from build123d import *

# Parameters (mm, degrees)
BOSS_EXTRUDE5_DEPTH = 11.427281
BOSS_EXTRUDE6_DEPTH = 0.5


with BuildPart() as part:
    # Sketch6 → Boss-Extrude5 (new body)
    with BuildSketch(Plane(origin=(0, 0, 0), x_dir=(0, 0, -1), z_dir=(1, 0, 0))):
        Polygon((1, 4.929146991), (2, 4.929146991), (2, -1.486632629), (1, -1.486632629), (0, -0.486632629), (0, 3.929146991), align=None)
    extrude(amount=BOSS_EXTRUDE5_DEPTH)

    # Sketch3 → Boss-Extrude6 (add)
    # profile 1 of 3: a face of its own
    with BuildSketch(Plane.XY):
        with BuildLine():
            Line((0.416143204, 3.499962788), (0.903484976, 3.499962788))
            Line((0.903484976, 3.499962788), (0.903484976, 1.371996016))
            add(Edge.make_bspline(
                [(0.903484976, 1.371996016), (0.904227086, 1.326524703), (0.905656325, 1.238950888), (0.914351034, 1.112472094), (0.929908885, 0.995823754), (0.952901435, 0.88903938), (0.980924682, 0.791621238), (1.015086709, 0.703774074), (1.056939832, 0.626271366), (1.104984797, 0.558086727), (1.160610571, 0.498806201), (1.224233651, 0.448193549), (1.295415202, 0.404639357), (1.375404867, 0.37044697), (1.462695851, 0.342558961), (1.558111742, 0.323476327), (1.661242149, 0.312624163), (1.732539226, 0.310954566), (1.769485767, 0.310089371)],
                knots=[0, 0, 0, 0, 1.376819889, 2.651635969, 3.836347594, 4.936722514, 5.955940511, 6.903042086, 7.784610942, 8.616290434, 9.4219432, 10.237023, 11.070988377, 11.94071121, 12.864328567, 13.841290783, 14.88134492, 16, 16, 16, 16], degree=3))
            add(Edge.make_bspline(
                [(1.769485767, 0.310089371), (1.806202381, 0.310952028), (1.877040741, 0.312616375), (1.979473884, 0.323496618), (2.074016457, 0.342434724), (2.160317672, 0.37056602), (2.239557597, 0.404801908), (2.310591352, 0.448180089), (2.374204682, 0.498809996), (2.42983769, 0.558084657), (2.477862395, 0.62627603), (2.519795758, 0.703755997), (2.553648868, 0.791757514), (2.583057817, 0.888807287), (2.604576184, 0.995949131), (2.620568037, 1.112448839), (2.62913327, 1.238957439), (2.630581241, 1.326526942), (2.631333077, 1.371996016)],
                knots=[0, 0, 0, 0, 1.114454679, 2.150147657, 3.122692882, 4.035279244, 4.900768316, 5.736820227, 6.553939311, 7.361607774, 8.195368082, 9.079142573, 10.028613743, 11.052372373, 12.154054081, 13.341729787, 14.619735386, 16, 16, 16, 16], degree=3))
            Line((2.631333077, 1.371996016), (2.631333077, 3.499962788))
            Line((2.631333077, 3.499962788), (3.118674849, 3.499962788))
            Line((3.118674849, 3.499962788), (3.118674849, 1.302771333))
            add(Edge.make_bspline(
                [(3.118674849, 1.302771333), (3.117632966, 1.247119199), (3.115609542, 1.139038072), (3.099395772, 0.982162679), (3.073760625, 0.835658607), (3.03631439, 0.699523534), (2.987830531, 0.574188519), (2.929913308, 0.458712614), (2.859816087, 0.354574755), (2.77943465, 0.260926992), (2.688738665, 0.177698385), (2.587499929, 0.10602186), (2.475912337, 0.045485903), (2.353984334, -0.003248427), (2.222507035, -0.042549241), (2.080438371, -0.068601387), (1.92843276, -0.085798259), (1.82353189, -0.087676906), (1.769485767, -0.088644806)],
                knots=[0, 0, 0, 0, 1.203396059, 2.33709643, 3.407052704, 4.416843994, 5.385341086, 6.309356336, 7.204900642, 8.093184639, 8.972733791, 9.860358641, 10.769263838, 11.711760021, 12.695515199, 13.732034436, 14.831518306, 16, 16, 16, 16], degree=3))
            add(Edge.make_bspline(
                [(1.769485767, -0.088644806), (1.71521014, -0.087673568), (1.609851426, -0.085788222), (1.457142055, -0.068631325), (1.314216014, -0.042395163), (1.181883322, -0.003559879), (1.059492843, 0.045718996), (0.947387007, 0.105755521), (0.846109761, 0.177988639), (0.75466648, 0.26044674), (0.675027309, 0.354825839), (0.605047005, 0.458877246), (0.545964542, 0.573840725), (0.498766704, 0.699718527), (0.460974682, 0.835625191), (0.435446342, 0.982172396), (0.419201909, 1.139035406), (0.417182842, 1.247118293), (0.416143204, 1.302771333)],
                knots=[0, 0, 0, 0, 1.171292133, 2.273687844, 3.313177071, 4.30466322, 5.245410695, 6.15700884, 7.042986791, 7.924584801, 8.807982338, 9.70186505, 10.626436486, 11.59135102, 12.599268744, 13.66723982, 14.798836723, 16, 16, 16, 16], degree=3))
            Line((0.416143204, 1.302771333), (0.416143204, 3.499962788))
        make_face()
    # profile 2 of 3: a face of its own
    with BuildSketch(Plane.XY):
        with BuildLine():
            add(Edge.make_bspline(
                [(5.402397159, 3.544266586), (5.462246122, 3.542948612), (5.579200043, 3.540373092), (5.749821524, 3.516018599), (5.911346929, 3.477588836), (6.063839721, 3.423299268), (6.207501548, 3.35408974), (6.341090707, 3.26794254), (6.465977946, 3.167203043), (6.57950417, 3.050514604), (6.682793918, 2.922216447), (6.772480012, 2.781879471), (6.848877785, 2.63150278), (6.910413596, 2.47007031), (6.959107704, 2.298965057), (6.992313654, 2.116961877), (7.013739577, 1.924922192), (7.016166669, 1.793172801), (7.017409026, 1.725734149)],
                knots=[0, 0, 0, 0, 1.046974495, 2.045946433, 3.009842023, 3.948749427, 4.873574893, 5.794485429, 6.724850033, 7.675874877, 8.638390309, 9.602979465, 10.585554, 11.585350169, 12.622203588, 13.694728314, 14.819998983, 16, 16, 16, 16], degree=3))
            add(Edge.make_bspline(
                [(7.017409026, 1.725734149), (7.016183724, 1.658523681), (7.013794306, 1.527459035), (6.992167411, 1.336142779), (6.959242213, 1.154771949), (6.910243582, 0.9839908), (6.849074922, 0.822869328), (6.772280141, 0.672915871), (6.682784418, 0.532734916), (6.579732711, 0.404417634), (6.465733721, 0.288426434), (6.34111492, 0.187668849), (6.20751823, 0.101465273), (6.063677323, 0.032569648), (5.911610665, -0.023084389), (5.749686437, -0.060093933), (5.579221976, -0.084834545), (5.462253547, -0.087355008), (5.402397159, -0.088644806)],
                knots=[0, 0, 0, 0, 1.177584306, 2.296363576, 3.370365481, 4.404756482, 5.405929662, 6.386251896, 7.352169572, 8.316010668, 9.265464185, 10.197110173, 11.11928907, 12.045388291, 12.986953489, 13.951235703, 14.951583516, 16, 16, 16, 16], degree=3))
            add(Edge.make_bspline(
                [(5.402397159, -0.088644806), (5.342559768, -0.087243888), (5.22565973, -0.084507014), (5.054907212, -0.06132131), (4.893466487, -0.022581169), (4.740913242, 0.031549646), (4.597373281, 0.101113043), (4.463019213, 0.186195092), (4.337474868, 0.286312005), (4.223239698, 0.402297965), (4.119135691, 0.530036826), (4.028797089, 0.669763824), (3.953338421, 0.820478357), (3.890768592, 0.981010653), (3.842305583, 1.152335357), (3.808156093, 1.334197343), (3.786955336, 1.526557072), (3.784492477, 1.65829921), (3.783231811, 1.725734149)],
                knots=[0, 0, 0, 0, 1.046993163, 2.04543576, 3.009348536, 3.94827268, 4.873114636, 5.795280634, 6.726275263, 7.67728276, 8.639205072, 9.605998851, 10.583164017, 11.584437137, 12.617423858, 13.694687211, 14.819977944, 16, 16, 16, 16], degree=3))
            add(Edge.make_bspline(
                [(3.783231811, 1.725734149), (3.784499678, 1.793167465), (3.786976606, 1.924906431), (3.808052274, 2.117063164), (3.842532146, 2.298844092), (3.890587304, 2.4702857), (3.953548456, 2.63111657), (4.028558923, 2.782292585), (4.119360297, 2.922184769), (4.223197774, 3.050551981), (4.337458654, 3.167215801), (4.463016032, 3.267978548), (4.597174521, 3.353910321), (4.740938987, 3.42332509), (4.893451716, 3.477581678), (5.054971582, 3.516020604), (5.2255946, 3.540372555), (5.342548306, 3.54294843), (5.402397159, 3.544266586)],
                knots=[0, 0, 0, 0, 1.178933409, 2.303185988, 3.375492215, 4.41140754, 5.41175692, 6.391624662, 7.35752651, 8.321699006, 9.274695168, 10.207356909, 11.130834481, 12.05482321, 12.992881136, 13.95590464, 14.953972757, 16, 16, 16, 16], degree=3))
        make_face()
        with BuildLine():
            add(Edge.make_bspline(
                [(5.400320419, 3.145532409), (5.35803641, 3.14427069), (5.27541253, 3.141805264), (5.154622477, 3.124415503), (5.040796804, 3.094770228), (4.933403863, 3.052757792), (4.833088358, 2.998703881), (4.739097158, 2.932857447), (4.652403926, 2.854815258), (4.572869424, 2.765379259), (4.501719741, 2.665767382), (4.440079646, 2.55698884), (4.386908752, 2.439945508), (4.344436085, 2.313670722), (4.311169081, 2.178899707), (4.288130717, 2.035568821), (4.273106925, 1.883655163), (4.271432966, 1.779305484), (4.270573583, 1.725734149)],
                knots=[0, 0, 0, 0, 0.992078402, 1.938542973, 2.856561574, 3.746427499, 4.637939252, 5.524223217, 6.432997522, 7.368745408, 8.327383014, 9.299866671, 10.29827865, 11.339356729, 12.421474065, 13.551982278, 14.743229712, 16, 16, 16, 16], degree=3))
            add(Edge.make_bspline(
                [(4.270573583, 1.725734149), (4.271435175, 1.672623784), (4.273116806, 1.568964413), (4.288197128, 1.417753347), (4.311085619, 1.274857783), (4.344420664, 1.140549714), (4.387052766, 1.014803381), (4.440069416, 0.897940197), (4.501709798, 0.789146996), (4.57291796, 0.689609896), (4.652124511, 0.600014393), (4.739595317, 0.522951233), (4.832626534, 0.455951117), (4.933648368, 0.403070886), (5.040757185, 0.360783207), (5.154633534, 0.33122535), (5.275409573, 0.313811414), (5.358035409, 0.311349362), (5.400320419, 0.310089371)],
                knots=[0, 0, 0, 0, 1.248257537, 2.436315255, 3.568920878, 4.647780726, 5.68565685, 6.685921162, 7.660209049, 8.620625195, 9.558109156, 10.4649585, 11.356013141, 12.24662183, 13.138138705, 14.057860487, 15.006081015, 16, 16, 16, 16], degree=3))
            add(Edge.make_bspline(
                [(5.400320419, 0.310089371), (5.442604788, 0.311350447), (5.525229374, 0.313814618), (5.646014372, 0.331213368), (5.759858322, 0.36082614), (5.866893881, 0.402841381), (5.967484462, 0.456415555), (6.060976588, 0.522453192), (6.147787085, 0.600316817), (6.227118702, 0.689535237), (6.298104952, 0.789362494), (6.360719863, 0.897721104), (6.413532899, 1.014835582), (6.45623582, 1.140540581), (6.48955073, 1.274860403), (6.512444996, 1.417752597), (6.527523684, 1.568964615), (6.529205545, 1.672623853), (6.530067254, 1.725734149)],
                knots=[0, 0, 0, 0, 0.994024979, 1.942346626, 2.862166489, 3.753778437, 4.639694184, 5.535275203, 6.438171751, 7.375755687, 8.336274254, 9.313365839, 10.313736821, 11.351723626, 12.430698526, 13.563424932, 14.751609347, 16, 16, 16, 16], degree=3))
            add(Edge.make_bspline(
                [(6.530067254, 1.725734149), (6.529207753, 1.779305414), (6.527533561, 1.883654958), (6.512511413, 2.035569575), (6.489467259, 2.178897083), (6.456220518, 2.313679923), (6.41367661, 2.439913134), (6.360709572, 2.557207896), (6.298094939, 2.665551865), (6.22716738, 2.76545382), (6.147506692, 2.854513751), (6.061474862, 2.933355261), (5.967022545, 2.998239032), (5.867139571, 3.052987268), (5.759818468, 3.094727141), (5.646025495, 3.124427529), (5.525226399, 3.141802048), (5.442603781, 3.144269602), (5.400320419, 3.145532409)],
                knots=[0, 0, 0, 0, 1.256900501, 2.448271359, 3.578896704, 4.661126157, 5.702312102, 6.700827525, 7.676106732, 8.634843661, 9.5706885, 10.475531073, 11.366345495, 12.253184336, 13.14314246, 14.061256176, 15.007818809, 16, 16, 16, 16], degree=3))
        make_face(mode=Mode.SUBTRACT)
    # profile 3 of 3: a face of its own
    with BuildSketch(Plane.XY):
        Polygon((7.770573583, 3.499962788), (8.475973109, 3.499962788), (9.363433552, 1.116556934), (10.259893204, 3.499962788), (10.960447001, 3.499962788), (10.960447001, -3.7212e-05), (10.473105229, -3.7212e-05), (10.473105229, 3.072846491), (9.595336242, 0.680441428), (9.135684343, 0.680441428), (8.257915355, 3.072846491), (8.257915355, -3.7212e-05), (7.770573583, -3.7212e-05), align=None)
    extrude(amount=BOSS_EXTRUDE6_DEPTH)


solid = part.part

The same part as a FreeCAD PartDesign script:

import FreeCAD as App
import Part
import Sketcher
from FreeCAD import Vector
Q = App.Units.Quantity


def add_polygon(sketch, points):
    """Adds a closed chain of lines whose ends are joined by coincident constraints."""
    first, n = sketch.GeometryCount, len(points)
    for a, b in zip(points, points[1:] + points[:1]):
        sketch.addGeometry(Part.LineSegment(App.Vector(*a, 0), App.Vector(*b, 0)), False)
    for i in range(n):
        sketch.addConstraint(Sketcher.Constraint("Coincident", first + i, 2, first + (i + 1) % n, 1))

doc = App.newDocument("Part")
body = doc.addObject("PartDesign::Body", "Body")

# Sketch on YZ plane
sketch1 = doc.addObject("Sketcher::SketchObject", "Sketch")
body.addObject(sketch1)
sketch1.AttachmentSupport = (doc.YZ_Plane, [""])
sketch1.MapMode = "FlatFace"
add_polygon(sketch1, [(4.929147, -2), (4.929147, -1), (3.929147, 0), (-0.486633, 0), (-1.486633, -1), (-1.486633, -2)])  # lines 0-5
sketch1.addConstraint(Sketcher.Constraint("Vertical", 0))
sketch1.addConstraint(Sketcher.Constraint("Horizontal", 2))
sketch1.addConstraint(Sketcher.Constraint("Vertical", 4))
sketch1.addConstraint(Sketcher.Constraint("Horizontal", 5))
sketch1.addConstraint(Sketcher.Constraint("PointOnObject", 1, 2, -1))
sketch1.addConstraint(Sketcher.Constraint("Perpendicular", 1, 3))
sketch1.addConstraint(Sketcher.Constraint("Horizontal", 0, 2, 3, 2))
sketch1.addConstraint(Sketcher.Constraint("Equal", 1, 3))
sketch1.addConstraint(Sketcher.Constraint("DistanceY", 0, 1, 0, 2, Q("1 mm")))
sketch1.addConstraint(Sketcher.Constraint("DistanceY", 0, 2, -1, 1, Q("1 mm")))
sketch1.addConstraint(Sketcher.Constraint("DistanceX", 2, 2, 2, 1, Q("4.41578 mm")))
sketch1.addConstraint(Sketcher.Constraint("DistanceX", -1, 1, 0, 2, Q("4.929147 mm")))
pad1 = doc.addObject("PartDesign::Pad", "Pad")
body.addObject(pad1)
pad1.Profile = sketch1
pad1.Length = 11.427281

# Sketch on XY plane
sketch2 = doc.addObject("Sketcher::SketchObject", "Sketch001")
body.addObject(sketch2)
sketch2.AttachmentSupport = (doc.XY_Plane, [""])
sketch2.MapMode = "FlatFace"
sketch2.addGeometry(Part.LineSegment(Vector(0.903485, 3.499963, 0), Vector(0.416143, 3.499963, 0)), False)  # 0
sketch2.addGeometry(Part.LineSegment(Vector(0.416143, 3.499963, 0), Vector(0.416143, 1.302771, 0)), False)  # 1
sketch2.addGeometry(Part.BSplineCurve([Vector(1.769486, -0.088645, 0), Vector(1.71521, -0.087674, 0), Vector(1.609851, -0.085788, 0), Vector(1.457142, -0.068631, 0), Vector(1.314216, -0.042395, 0), Vector(1.181883, -0.00356, 0), Vector(1.059493, 0.045719, 0), Vector(0.947387, 0.105756, 0), Vector(0.84611, 0.177989, 0), Vector(0.754666, 0.260447, 0), Vector(0.675027, 0.354826, 0), Vector(0.605047, 0.458877, 0), Vector(0.545965, 0.573841, 0), Vector(0.498767, 0.699719, 0), Vector(0.460975, 0.835625, 0), Vector(0.435446, 0.982172, 0), Vector(0.419202, 1.139035, 0), Vector(0.417183, 1.247118, 0), Vector(0.416143, 1.302771, 0)], [4, 1, 1, 1, 1, 1, 1, 1, 1, 1, 1, 1, 1, 1, 1, 1, 4], [0, 1.171292133, 2.273687844, 3.313177071, 4.30466322, 5.245410695, 6.15700884, 7.042986791, 7.924584801, 8.807982338, 9.70186505, 10.626436486, 11.59135102, 12.599268744, 13.66723982, 14.798836723, 16], False, 3, [1, 1, 1, 1, 1, 1, 1, 1, 1, 1, 1, 1, 1, 1, 1, 1, 1, 1, 1], False), False)  # 2
sketch2.addGeometry(Part.BSplineCurve([Vector(3.118675, 1.302771, 0), Vector(3.117633, 1.247119, 0), Vector(3.11561, 1.139038, 0), Vector(3.099396, 0.982163, 0), Vector(3.073761, 0.835659, 0), Vector(3.036314, 0.699524, 0), Vector(2.987831, 0.574189, 0), Vector(2.929913, 0.458713, 0), Vector(2.859816, 0.354575, 0), Vector(2.779435, 0.260927, 0), Vector(2.688739, 0.177698, 0), Vector(2.5875, 0.106022, 0), Vector(2.475912, 0.045486, 0), Vector(2.353984, -0.003248, 0), Vector(2.222507, -0.042549, 0), Vector(2.080438, -0.068601, 0), Vector(1.928433, -0.085798, 0), Vector(1.823532, -0.087677, 0), Vector(1.769486, -0.088645, 0)], [4, 1, 1, 1, 1, 1, 1, 1, 1, 1, 1, 1, 1, 1, 1, 1, 4], [0, 1.203396059, 2.33709643, 3.407052704, 4.416843994, 5.385341086, 6.309356336, 7.204900642, 8.093184639, 8.972733791, 9.860358641, 10.769263838, 11.711760021, 12.695515199, 13.732034436, 14.831518306, 16], False, 3, [1, 1, 1, 1, 1, 1, 1, 1, 1, 1, 1, 1, 1, 1, 1, 1, 1, 1, 1], False), False)  # 3
sketch2.addGeometry(Part.LineSegment(Vector(3.118675, 1.302771, 0), Vector(3.118675, 3.499963, 0)), False)  # 4
sketch2.addGeometry(Part.LineSegment(Vector(3.118675, 3.499963, 0), Vector(2.631333, 3.499963, 0)), False)  # 5
sketch2.addGeometry(Part.LineSegment(Vector(2.631333, 3.499963, 0), Vector(2.631333, 1.371996, 0)), False)  # 6
sketch2.addGeometry(Part.BSplineCurve([Vector(1.769486, 0.310089, 0), Vector(1.806202, 0.310952, 0), Vector(1.877041, 0.312616, 0), Vector(1.979474, 0.323497, 0), Vector(2.074016, 0.342435, 0), Vector(2.160318, 0.370566, 0), Vector(2.239558, 0.404802, 0), Vector(2.310591, 0.44818, 0), Vector(2.374205, 0.49881, 0), Vector(2.429838, 0.558085, 0), Vector(2.477862, 0.626276, 0), Vector(2.519796, 0.703756, 0), Vector(2.553649, 0.791758, 0), Vector(2.583058, 0.888807, 0), Vector(2.604576, 0.995949, 0), Vector(2.620568, 1.112449, 0), Vector(2.629133, 1.238957, 0), Vector(2.630581, 1.326527, 0), Vector(2.631333, 1.371996, 0)], [4, 1, 1, 1, 1, 1, 1, 1, 1, 1, 1, 1, 1, 1, 1, 1, 4], [0, 1.114454679, 2.150147657, 3.122692882, 4.035279244, 4.900768316, 5.736820227, 6.553939311, 7.361607774, 8.195368082, 9.079142573, 10.028613743, 11.052372373, 12.154054081, 13.341729787, 14.619735386, 16], False, 3, [1, 1, 1, 1, 1, 1, 1, 1, 1, 1, 1, 1, 1, 1, 1, 1, 1, 1, 1], False), False)  # 7
sketch2.addGeometry(Part.BSplineCurve([Vector(0.903485, 1.371996, 0), Vector(0.904227, 1.326525, 0), Vector(0.905656, 1.238951, 0), Vector(0.914351, 1.112472, 0), Vector(0.929909, 0.995824, 0), Vector(0.952901, 0.889039, 0), Vector(0.980925, 0.791621, 0), Vector(1.015087, 0.703774, 0), Vector(1.05694, 0.626271, 0), Vector(1.104985, 0.558087, 0), Vector(1.160611, 0.498806, 0), Vector(1.224234, 0.448194, 0), Vector(1.295415, 0.404639, 0), Vector(1.375405, 0.370447, 0), Vector(1.462696, 0.342559, 0), Vector(1.558112, 0.323476, 0), Vector(1.661242, 0.312624, 0), Vector(1.732539, 0.310955, 0), Vector(1.769486, 0.310089, 0)], [4, 1, 1, 1, 1, 1, 1, 1, 1, 1, 1, 1, 1, 1, 1, 1, 4], [0, 1.376819889, 2.651635969, 3.836347594, 4.936722514, 5.955940511, 6.903042086, 7.784610942, 8.616290434, 9.4219432, 10.237023, 11.070988377, 11.94071121, 12.864328567, 13.841290783, 14.88134492, 16], False, 3, [1, 1, 1, 1, 1, 1, 1, 1, 1, 1, 1, 1, 1, 1, 1, 1, 1, 1, 1], False), False)  # 8
sketch2.addGeometry(Part.LineSegment(Vector(0.903485, 1.371996, 0), Vector(0.903485, 3.499963, 0)), False)  # 9
sketch2.addGeometry(Part.BSplineCurve([Vector(5.402397, 3.544267, 0), Vector(5.462246, 3.542949, 0), Vector(5.5792, 3.540373, 0), Vector(5.749822, 3.516019, 0), Vector(5.911347, 3.477589, 0), Vector(6.06384, 3.423299, 0), Vector(6.207502, 3.35409, 0), Vector(6.341091, 3.267943, 0), Vector(6.465978, 3.167203, 0), Vector(6.579504, 3.050515, 0), Vector(6.682794, 2.922216, 0), Vector(6.77248, 2.781879, 0), Vector(6.848878, 2.631503, 0), Vector(6.910414, 2.47007, 0), Vector(6.959108, 2.298965, 0), Vector(6.992314, 2.116962, 0), Vector(7.01374, 1.924922, 0), Vector(7.016167, 1.793173, 0), Vector(7.017409, 1.725734, 0)], [4, 1, 1, 1, 1, 1, 1, 1, 1, 1, 1, 1, 1, 1, 1, 1, 4], [0, 1.046974495, 2.045946433, 3.009842023, 3.948749427, 4.873574893, 5.794485429, 6.724850033, 7.675874877, 8.638390309, 9.602979465, 10.585554, 11.585350169, 12.622203588, 13.694728314, 14.819998983, 16], False, 3, [1, 1, 1, 1, 1, 1, 1, 1, 1, 1, 1, 1, 1, 1, 1, 1, 1, 1, 1], False), False)  # 10
sketch2.addGeometry(Part.BSplineCurve([Vector(3.783232, 1.725734, 0), Vector(3.7845, 1.793167, 0), Vector(3.786977, 1.924906, 0), Vector(3.808052, 2.117063, 0), Vector(3.842532, 2.298844, 0), Vector(3.890587, 2.470286, 0), Vector(3.953548, 2.631117, 0), Vector(4.028559, 2.782293, 0), Vector(4.11936, 2.922185, 0), Vector(4.223198, 3.050552, 0), Vector(4.337459, 3.167216, 0), Vector(4.463016, 3.267979, 0), Vector(4.597175, 3.35391, 0), Vector(4.740939, 3.423325, 0), Vector(4.893452, 3.477582, 0), Vector(5.054972, 3.516021, 0), Vector(5.225595, 3.540373, 0), Vector(5.342548, 3.542948, 0), Vector(5.402397, 3.544267, 0)], [4, 1, 1, 1, 1, 1, 1, 1, 1, 1, 1, 1, 1, 1, 1, 1, 4], [0, 1.178933409, 2.303185988, 3.375492215, 4.41140754, 5.41175692, 6.391624662, 7.35752651, 8.321699006, 9.274695168, 10.207356909, 11.130834481, 12.05482321, 12.992881136, 13.95590464, 14.953972757, 16], False, 3, [1, 1, 1, 1, 1, 1, 1, 1, 1, 1, 1, 1, 1, 1, 1, 1, 1, 1, 1], False), False)  # 11
sketch2.addGeometry(Part.BSplineCurve([Vector(5.402397, -0.088645, 0), Vector(5.34256, -0.087244, 0), Vector(5.22566, -0.084507, 0), Vector(5.054907, -0.061321, 0), Vector(4.893466, -0.022581, 0), Vector(4.740913, 0.03155, 0), Vector(4.597373, 0.101113, 0), Vector(4.463019, 0.186195, 0), Vector(4.337475, 0.286312, 0), Vector(4.22324, 0.402298, 0), Vector(4.119136, 0.530037, 0), Vector(4.028797, 0.669764, 0), Vector(3.953338, 0.820478, 0), Vector(3.890769, 0.981011, 0), Vector(3.842306, 1.152335, 0), Vector(3.808156, 1.334197, 0), Vector(3.786955, 1.526557, 0), Vector(3.784492, 1.658299, 0), Vector(3.783232, 1.725734, 0)], [4, 1, 1, 1, 1, 1, 1, 1, 1, 1, 1, 1, 1, 1, 1, 1, 4], [0, 1.046993163, 2.04543576, 3.009348536, 3.94827268, 4.873114636, 5.795280634, 6.726275263, 7.67728276, 8.639205072, 9.605998851, 10.583164017, 11.584437137, 12.617423858, 13.694687211, 14.819977944, 16], False, 3, [1, 1, 1, 1, 1, 1, 1, 1, 1, 1, 1, 1, 1, 1, 1, 1, 1, 1, 1], False), False)  # 12
sketch2.addGeometry(Part.BSplineCurve([Vector(7.017409, 1.725734, 0), Vector(7.016184, 1.658524, 0), Vector(7.013794, 1.527459, 0), Vector(6.992167, 1.336143, 0), Vector(6.959242, 1.154772, 0), Vector(6.910244, 0.983991, 0), Vector(6.849075, 0.822869, 0), Vector(6.77228, 0.672916, 0), Vector(6.682784, 0.532735, 0), Vector(6.579733, 0.404418, 0), Vector(6.465734, 0.288426, 0), Vector(6.341115, 0.187669, 0), Vector(6.207518, 0.101465, 0), Vector(6.063677, 0.03257, 0), Vector(5.911611, -0.023084, 0), Vector(5.749686, -0.060094, 0), Vector(5.579222, -0.084835, 0), Vector(5.462254, -0.087355, 0), Vector(5.402397, -0.088645, 0)], [4, 1, 1, 1, 1, 1, 1, 1, 1, 1, 1, 1, 1, 1, 1, 1, 4], [0, 1.177584306, 2.296363576, 3.370365481, 4.404756482, 5.405929662, 6.386251896, 7.352169572, 8.316010668, 9.265464185, 10.197110173, 11.11928907, 12.045388291, 12.986953489, 13.951235703, 14.951583516, 16], False, 3, [1, 1, 1, 1, 1, 1, 1, 1, 1, 1, 1, 1, 1, 1, 1, 1, 1, 1, 1], False), False)  # 13
sketch2.addGeometry(Part.BSplineCurve([Vector(6.530067, 1.725734, 0), Vector(6.529208, 1.779305, 0), Vector(6.527534, 1.883655, 0), Vector(6.512511, 2.03557, 0), Vector(6.489467, 2.178897, 0), Vector(6.456221, 2.31368, 0), Vector(6.413677, 2.439913, 0), Vector(6.36071, 2.557208, 0), Vector(6.298095, 2.665552, 0), Vector(6.227167, 2.765454, 0), Vector(6.147507, 2.854514, 0), Vector(6.061475, 2.933355, 0), Vector(5.967023, 2.998239, 0), Vector(5.86714, 3.052987, 0), Vector(5.759818, 3.094727, 0), Vector(5.646025, 3.124428, 0), Vector(5.525226, 3.141802, 0), Vector(5.442604, 3.14427, 0), Vector(5.40032, 3.145532, 0)], [4, 1, 1, 1, 1, 1, 1, 1, 1, 1, 1, 1, 1, 1, 1, 1, 4], [0, 1.256900501, 2.448271359, 3.578896704, 4.661126157, 5.702312102, 6.700827525, 7.676106732, 8.634843661, 9.5706885, 10.475531073, 11.366345495, 12.253184336, 13.14314246, 14.061256176, 15.007818809, 16], False, 3, [1, 1, 1, 1, 1, 1, 1, 1, 1, 1, 1, 1, 1, 1, 1, 1, 1, 1, 1], False), False)  # 14
sketch2.addGeometry(Part.BSplineCurve([Vector(5.40032, 0.310089, 0), Vector(5.442605, 0.31135, 0), Vector(5.525229, 0.313815, 0), Vector(5.646014, 0.331213, 0), Vector(5.759858, 0.360826, 0), Vector(5.866894, 0.402841, 0), Vector(5.967484, 0.456416, 0), Vector(6.060977, 0.522453, 0), Vector(6.147787, 0.600317, 0), Vector(6.227119, 0.689535, 0), Vector(6.298105, 0.789362, 0), Vector(6.36072, 0.897721, 0), Vector(6.413533, 1.014836, 0), Vector(6.456236, 1.140541, 0), Vector(6.489551, 1.27486, 0), Vector(6.512445, 1.417753, 0), Vector(6.527524, 1.568965, 0), Vector(6.529206, 1.672624, 0), Vector(6.530067, 1.725734, 0)], [4, 1, 1, 1, 1, 1, 1, 1, 1, 1, 1, 1, 1, 1, 1, 1, 4], [0, 0.994024979, 1.942346626, 2.862166489, 3.753778437, 4.639694184, 5.535275203, 6.438171751, 7.375755687, 8.336274254, 9.313365839, 10.313736821, 11.351723626, 12.430698526, 13.563424932, 14.751609347, 16], False, 3, [1, 1, 1, 1, 1, 1, 1, 1, 1, 1, 1, 1, 1, 1, 1, 1, 1, 1, 1], False), False)  # 15
sketch2.addGeometry(Part.BSplineCurve([Vector(4.270574, 1.725734, 0), Vector(4.271435, 1.672624, 0), Vector(4.273117, 1.568964, 0), Vector(4.288197, 1.417753, 0), Vector(4.311086, 1.274858, 0), Vector(4.344421, 1.14055, 0), Vector(4.387053, 1.014803, 0), Vector(4.440069, 0.89794, 0), Vector(4.50171, 0.789147, 0), Vector(4.572918, 0.68961, 0), Vector(4.652125, 0.600014, 0), Vector(4.739595, 0.522951, 0), Vector(4.832627, 0.455951, 0), Vector(4.933648, 0.403071, 0), Vector(5.040757, 0.360783, 0), Vector(5.154634, 0.331225, 0), Vector(5.27541, 0.313811, 0), Vector(5.358035, 0.311349, 0), Vector(5.40032, 0.310089, 0)], [4, 1, 1, 1, 1, 1, 1, 1, 1, 1, 1, 1, 1, 1, 1, 1, 4], [0, 1.248257537, 2.436315255, 3.568920878, 4.647780726, 5.68565685, 6.685921162, 7.660209049, 8.620625195, 9.558109156, 10.4649585, 11.356013141, 12.24662183, 13.138138705, 14.057860487, 15.006081015, 16], False, 3, [1, 1, 1, 1, 1, 1, 1, 1, 1, 1, 1, 1, 1, 1, 1, 1, 1, 1, 1], False), False)  # 16
sketch2.addGeometry(Part.BSplineCurve([Vector(5.40032, 3.145532, 0), Vector(5.358036, 3.144271, 0), Vector(5.275413, 3.141805, 0), Vector(5.154622, 3.124416, 0), Vector(5.040797, 3.09477, 0), Vector(4.933404, 3.052758, 0), Vector(4.833088, 2.998704, 0), Vector(4.739097, 2.932857, 0), Vector(4.652404, 2.854815, 0), Vector(4.572869, 2.765379, 0), Vector(4.50172, 2.665767, 0), Vector(4.44008, 2.556989, 0), Vector(4.386909, 2.439946, 0), Vector(4.344436, 2.313671, 0), Vector(4.311169, 2.1789, 0), Vector(4.288131, 2.035569, 0), Vector(4.273107, 1.883655, 0), Vector(4.271433, 1.779305, 0), Vector(4.270574, 1.725734, 0)], [4, 1, 1, 1, 1, 1, 1, 1, 1, 1, 1, 1, 1, 1, 1, 1, 4], [0, 0.992078402, 1.938542973, 2.856561574, 3.746427499, 4.637939252, 5.524223217, 6.432997522, 7.368745408, 8.327383014, 9.299866671, 10.29827865, 11.339356729, 12.421474065, 13.551982278, 14.743229712, 16], False, 3, [1, 1, 1, 1, 1, 1, 1, 1, 1, 1, 1, 1, 1, 1, 1, 1, 1, 1, 1], False), False)  # 17
add_polygon(sketch2, [(8.475973, 3.499963), (7.770574, 3.499963), (7.770574, -0.000037), (8.257915, -0.000037), (8.257915, 3.072846), (9.135684, 0.680441), (9.595336, 0.680441), (10.473105, 3.072846), (10.473105, -0.000037), (10.960447, -0.000037), (10.960447, 3.499963), (10.259893, 3.499963), (9.363434, 1.116557)])  # lines 18-30
sketch2.addConstraint(Sketcher.Constraint("Block", 2))
sketch2.addConstraint(Sketcher.Constraint("Block", 3))
sketch2.addConstraint(Sketcher.Constraint("Block", 7))
sketch2.addConstraint(Sketcher.Constraint("Block", 8))
sketch2.addConstraint(Sketcher.Constraint("Block", 10))
sketch2.addConstraint(Sketcher.Constraint("Block", 11))
sketch2.addConstraint(Sketcher.Constraint("Block", 12))
sketch2.addConstraint(Sketcher.Constraint("Block", 13))
sketch2.addConstraint(Sketcher.Constraint("Block", 14))
sketch2.addConstraint(Sketcher.Constraint("Block", 15))
sketch2.addConstraint(Sketcher.Constraint("Block", 16))
sketch2.addConstraint(Sketcher.Constraint("Block", 17))
sketch2.addConstraint(Sketcher.Constraint("Coincident", 0, 2, 1, 1))
sketch2.addConstraint(Sketcher.Constraint("Coincident", 1, 2, 2, 2))
sketch2.addConstraint(Sketcher.Constraint("Coincident", 3, 1, 4, 1))
sketch2.addConstraint(Sketcher.Constraint("Coincident", 4, 2, 5, 1))
sketch2.addConstraint(Sketcher.Constraint("Coincident", 5, 2, 6, 1))
sketch2.addConstraint(Sketcher.Constraint("Coincident", 6, 2, 7, 2))
sketch2.addConstraint(Sketcher.Constraint("Coincident", 8, 1, 9, 1))
sketch2.addConstraint(Sketcher.Constraint("Coincident", 9, 2, 0, 1))
sketch2.addConstraint(Sketcher.Constraint("Horizontal", 0))
sketch2.addConstraint(Sketcher.Constraint("Vertical", 1))
sketch2.addConstraint(Sketcher.Constraint("Vertical", 4))
sketch2.addConstraint(Sketcher.Constraint("Horizontal", 5))
sketch2.addConstraint(Sketcher.Constraint("Vertical", 6))
sketch2.addConstraint(Sketcher.Constraint("Vertical", 9))
sketch2.addConstraint(Sketcher.Constraint("Horizontal", 18))
sketch2.addConstraint(Sketcher.Constraint("Vertical", 19))
sketch2.addConstraint(Sketcher.Constraint("Horizontal", 20))
sketch2.addConstraint(Sketcher.Constraint("Vertical", 21))
sketch2.addConstraint(Sketcher.Constraint("Horizontal", 23))
sketch2.addConstraint(Sketcher.Constraint("Vertical", 25))
sketch2.addConstraint(Sketcher.Constraint("Horizontal", 26))
sketch2.addConstraint(Sketcher.Constraint("Vertical", 27))
sketch2.addConstraint(Sketcher.Constraint("Horizontal", 28))
sketch2.addConstraint(Sketcher.Constraint("Horizontal", 0, 2, 4, 2))
sketch2.addConstraint(Sketcher.Constraint("Horizontal", 9, 2, 18, 2))
sketch2.addConstraint(Sketcher.Constraint("Horizontal", 21, 2, 24, 2))
sketch2.addConstraint(Sketcher.Constraint("Horizontal", 20, 2, 25, 2))
sketch2.addConstraint(Sketcher.Constraint("Horizontal", 18, 2, 27, 2))
sketch2.addConstraint(Sketcher.Constraint("Equal", 5, 20))
sketch2.addConstraint(Sketcher.Constraint("Equal", 20, 26))
sketch2.addConstraint(Sketcher.Constraint("Equal", 22, 24))
sketch2.addConstraint(Sketcher.Constraint("DistanceY", 19, 2, 19, 1, Q("3.5 mm")))
sketch2.addConstraint(Sketcher.Constraint("DistanceX", 18, 2, 18, 1, Q("0.7054 mm")))
sketch2.addConstraint(Sketcher.Constraint("DistanceX", 23, 1, 23, 2, Q("0.459652 mm")))
sketch2.addConstraint(Sketcher.Constraint("DistanceY", 1, 2, 1, 1, Q("2.197191 mm")))
sketch2.addConstraint(Sketcher.Constraint("DistanceX", 4, 2, 18, 2, Q("4.651899 mm")))
sketch2.addConstraint(Sketcher.Constraint("Distance", 22, Q("2.548349 mm")))
sketch2.addConstraint(Sketcher.Constraint("Distance", 29, Q("2.546422 mm")))
sketch2.addConstraint(Sketcher.Constraint("DistanceX", 28, 2, 28, 1, Q("0.700554 mm")))
sketch2.addConstraint(Sketcher.Constraint("DistanceY", 21, 1, 21, 2, Q("3.072884 mm")))
sketch2.addConstraint(Sketcher.Constraint("DistanceY", -1, 1, 22, 2, Q("0.680441 mm")))
sketch2.addConstraint(Sketcher.Constraint("DistanceX", 22, 2, 29, 2, Q("0.227749 mm")))
pad2 = doc.addObject("PartDesign::Pad", "Pad001")
body.addObject(pad2)
pad2.Profile = sketch2
pad2.Length = 0.5

doc.recompute()
